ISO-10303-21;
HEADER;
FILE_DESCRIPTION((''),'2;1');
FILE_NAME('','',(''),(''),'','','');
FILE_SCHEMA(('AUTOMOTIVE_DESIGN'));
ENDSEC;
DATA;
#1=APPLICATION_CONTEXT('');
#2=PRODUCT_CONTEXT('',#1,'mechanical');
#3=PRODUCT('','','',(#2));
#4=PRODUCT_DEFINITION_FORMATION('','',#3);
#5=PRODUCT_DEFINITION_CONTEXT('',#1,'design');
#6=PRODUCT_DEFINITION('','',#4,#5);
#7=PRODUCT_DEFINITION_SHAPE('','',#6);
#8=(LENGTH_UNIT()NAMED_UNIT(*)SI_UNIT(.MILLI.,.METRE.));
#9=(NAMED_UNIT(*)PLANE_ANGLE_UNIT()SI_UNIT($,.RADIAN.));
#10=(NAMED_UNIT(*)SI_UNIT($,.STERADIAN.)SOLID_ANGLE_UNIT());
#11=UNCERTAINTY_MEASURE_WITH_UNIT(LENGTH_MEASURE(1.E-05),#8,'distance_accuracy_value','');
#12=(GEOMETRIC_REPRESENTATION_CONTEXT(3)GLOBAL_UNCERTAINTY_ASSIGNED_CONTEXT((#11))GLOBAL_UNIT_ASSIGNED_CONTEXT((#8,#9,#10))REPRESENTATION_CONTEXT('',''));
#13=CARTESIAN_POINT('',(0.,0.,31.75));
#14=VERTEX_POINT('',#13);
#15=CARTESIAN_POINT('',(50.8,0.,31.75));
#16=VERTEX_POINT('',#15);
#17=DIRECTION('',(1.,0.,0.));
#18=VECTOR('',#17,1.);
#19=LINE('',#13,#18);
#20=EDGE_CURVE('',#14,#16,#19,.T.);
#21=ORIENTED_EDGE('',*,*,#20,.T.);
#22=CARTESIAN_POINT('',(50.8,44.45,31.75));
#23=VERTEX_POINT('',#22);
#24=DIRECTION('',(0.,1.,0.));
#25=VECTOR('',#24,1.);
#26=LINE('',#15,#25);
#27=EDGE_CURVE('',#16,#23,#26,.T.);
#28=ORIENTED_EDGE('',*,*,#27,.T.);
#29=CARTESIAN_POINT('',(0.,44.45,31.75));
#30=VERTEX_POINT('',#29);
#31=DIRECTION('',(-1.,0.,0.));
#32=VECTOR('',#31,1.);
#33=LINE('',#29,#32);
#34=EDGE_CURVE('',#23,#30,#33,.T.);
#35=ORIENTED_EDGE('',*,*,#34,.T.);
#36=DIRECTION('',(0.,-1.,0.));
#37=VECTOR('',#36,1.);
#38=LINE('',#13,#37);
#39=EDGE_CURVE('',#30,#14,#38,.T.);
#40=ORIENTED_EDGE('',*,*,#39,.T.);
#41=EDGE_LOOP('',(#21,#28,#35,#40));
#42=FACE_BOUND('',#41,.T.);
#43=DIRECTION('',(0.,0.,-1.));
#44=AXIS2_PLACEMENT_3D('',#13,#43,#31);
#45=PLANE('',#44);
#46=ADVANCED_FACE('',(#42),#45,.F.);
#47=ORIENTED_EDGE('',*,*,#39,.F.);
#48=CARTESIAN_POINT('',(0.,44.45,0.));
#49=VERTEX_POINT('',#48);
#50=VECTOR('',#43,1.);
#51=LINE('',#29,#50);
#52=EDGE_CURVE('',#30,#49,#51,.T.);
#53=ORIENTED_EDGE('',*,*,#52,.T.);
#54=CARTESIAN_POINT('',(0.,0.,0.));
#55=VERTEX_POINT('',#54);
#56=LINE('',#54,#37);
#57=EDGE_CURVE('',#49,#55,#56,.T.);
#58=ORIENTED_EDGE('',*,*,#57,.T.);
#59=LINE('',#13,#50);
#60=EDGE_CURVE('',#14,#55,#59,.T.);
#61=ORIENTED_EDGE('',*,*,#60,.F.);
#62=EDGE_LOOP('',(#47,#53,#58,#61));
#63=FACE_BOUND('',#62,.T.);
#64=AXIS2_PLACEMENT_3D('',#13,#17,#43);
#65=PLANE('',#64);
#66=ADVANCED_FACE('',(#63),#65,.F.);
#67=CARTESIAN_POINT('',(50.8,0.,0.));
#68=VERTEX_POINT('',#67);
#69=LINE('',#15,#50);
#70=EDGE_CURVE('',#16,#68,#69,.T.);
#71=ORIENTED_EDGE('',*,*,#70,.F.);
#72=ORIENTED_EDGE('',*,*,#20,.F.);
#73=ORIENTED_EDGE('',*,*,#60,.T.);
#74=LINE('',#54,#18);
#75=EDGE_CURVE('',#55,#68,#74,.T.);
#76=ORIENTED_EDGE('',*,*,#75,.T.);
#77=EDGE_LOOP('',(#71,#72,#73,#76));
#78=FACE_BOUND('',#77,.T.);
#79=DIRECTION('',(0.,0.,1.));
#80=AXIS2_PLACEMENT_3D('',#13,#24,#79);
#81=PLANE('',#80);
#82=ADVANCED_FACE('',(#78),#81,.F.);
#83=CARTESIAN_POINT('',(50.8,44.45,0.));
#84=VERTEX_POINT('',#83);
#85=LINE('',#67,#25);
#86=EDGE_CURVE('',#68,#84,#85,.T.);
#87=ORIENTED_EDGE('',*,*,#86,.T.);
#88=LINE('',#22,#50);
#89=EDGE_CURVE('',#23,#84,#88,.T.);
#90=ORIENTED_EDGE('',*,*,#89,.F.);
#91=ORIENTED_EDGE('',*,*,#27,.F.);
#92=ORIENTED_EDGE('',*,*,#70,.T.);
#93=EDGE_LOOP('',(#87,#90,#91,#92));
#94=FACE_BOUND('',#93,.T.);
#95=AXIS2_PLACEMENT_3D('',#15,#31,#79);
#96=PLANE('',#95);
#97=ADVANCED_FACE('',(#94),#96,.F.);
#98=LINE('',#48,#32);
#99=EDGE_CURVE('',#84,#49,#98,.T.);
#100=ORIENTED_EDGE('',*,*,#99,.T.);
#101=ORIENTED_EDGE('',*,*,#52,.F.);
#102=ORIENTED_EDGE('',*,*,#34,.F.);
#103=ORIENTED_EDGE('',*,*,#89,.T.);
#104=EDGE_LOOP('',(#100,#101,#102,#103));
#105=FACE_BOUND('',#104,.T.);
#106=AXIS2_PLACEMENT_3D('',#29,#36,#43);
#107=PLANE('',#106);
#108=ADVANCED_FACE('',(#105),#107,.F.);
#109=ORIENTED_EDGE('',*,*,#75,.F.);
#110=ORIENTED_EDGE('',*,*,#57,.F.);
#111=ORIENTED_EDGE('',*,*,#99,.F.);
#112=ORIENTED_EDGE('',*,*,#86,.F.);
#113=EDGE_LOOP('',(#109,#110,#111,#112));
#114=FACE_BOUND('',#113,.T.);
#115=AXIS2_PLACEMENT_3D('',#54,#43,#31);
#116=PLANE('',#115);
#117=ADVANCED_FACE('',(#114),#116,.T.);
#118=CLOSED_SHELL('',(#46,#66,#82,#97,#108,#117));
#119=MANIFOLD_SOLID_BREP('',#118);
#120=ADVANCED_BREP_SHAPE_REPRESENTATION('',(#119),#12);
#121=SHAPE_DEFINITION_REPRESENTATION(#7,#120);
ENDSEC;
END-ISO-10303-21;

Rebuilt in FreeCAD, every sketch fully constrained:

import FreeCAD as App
import Part
import Sketcher
from FreeCAD import Vector
Q = App.Units.Quantity

doc = App.newDocument("Part")
body = doc.addObject("PartDesign::Body", "Body")

# Sketch on XY plane
sketch1 = body.newObject("Sketcher::SketchObject", "Sketch")
sketch1.AttachmentSupport = (doc.getObject("XY_Plane"), [""])
sketch1.MapMode = "FlatFace"
sketch1.addGeometry([
    Part.LineSegment(Vector(0, 44.45, 0), Vector(0, 0, 0)),
    Part.LineSegment(Vector(0, 0, 0), Vector(50.8, 0, 0)),
    Part.LineSegment(Vector(50.8, 0, 0), Vector(50.8, 44.45, 0)),
    Part.LineSegment(Vector(50.8, 44.45, 0), Vector(0, 44.45, 0)),
], False)
sketch1.addConstraint([
    Sketcher.Constraint("Coincident", 0, 2, 1, 1),
    Sketcher.Constraint("Coincident", 1, 2, 2, 1),
    Sketcher.Constraint("Coincident", 2, 2, 3, 1),
    Sketcher.Constraint("Coincident", 3, 2, 0, 1),
    Sketcher.Constraint("Vertical", 0),
    Sketcher.Constraint("Horizontal", 1),
    Sketcher.Constraint("Vertical", 2),
    Sketcher.Constraint("Horizontal", 3),
    Sketcher.Constraint("Coincident", 0, 2, -1, 1),
    Sketcher.Constraint("DistanceX", 1, 1, 1, 2, Q("2 in")),
    Sketcher.Constraint("DistanceY", 0, 2, 0, 1, Q("1.75 in")),
])
pad1 = body.newObject("PartDesign::Pad", "Pad")
pad1.Profile = sketch1
pad1.Length = Q("1.25 in")

doc.recompute()
